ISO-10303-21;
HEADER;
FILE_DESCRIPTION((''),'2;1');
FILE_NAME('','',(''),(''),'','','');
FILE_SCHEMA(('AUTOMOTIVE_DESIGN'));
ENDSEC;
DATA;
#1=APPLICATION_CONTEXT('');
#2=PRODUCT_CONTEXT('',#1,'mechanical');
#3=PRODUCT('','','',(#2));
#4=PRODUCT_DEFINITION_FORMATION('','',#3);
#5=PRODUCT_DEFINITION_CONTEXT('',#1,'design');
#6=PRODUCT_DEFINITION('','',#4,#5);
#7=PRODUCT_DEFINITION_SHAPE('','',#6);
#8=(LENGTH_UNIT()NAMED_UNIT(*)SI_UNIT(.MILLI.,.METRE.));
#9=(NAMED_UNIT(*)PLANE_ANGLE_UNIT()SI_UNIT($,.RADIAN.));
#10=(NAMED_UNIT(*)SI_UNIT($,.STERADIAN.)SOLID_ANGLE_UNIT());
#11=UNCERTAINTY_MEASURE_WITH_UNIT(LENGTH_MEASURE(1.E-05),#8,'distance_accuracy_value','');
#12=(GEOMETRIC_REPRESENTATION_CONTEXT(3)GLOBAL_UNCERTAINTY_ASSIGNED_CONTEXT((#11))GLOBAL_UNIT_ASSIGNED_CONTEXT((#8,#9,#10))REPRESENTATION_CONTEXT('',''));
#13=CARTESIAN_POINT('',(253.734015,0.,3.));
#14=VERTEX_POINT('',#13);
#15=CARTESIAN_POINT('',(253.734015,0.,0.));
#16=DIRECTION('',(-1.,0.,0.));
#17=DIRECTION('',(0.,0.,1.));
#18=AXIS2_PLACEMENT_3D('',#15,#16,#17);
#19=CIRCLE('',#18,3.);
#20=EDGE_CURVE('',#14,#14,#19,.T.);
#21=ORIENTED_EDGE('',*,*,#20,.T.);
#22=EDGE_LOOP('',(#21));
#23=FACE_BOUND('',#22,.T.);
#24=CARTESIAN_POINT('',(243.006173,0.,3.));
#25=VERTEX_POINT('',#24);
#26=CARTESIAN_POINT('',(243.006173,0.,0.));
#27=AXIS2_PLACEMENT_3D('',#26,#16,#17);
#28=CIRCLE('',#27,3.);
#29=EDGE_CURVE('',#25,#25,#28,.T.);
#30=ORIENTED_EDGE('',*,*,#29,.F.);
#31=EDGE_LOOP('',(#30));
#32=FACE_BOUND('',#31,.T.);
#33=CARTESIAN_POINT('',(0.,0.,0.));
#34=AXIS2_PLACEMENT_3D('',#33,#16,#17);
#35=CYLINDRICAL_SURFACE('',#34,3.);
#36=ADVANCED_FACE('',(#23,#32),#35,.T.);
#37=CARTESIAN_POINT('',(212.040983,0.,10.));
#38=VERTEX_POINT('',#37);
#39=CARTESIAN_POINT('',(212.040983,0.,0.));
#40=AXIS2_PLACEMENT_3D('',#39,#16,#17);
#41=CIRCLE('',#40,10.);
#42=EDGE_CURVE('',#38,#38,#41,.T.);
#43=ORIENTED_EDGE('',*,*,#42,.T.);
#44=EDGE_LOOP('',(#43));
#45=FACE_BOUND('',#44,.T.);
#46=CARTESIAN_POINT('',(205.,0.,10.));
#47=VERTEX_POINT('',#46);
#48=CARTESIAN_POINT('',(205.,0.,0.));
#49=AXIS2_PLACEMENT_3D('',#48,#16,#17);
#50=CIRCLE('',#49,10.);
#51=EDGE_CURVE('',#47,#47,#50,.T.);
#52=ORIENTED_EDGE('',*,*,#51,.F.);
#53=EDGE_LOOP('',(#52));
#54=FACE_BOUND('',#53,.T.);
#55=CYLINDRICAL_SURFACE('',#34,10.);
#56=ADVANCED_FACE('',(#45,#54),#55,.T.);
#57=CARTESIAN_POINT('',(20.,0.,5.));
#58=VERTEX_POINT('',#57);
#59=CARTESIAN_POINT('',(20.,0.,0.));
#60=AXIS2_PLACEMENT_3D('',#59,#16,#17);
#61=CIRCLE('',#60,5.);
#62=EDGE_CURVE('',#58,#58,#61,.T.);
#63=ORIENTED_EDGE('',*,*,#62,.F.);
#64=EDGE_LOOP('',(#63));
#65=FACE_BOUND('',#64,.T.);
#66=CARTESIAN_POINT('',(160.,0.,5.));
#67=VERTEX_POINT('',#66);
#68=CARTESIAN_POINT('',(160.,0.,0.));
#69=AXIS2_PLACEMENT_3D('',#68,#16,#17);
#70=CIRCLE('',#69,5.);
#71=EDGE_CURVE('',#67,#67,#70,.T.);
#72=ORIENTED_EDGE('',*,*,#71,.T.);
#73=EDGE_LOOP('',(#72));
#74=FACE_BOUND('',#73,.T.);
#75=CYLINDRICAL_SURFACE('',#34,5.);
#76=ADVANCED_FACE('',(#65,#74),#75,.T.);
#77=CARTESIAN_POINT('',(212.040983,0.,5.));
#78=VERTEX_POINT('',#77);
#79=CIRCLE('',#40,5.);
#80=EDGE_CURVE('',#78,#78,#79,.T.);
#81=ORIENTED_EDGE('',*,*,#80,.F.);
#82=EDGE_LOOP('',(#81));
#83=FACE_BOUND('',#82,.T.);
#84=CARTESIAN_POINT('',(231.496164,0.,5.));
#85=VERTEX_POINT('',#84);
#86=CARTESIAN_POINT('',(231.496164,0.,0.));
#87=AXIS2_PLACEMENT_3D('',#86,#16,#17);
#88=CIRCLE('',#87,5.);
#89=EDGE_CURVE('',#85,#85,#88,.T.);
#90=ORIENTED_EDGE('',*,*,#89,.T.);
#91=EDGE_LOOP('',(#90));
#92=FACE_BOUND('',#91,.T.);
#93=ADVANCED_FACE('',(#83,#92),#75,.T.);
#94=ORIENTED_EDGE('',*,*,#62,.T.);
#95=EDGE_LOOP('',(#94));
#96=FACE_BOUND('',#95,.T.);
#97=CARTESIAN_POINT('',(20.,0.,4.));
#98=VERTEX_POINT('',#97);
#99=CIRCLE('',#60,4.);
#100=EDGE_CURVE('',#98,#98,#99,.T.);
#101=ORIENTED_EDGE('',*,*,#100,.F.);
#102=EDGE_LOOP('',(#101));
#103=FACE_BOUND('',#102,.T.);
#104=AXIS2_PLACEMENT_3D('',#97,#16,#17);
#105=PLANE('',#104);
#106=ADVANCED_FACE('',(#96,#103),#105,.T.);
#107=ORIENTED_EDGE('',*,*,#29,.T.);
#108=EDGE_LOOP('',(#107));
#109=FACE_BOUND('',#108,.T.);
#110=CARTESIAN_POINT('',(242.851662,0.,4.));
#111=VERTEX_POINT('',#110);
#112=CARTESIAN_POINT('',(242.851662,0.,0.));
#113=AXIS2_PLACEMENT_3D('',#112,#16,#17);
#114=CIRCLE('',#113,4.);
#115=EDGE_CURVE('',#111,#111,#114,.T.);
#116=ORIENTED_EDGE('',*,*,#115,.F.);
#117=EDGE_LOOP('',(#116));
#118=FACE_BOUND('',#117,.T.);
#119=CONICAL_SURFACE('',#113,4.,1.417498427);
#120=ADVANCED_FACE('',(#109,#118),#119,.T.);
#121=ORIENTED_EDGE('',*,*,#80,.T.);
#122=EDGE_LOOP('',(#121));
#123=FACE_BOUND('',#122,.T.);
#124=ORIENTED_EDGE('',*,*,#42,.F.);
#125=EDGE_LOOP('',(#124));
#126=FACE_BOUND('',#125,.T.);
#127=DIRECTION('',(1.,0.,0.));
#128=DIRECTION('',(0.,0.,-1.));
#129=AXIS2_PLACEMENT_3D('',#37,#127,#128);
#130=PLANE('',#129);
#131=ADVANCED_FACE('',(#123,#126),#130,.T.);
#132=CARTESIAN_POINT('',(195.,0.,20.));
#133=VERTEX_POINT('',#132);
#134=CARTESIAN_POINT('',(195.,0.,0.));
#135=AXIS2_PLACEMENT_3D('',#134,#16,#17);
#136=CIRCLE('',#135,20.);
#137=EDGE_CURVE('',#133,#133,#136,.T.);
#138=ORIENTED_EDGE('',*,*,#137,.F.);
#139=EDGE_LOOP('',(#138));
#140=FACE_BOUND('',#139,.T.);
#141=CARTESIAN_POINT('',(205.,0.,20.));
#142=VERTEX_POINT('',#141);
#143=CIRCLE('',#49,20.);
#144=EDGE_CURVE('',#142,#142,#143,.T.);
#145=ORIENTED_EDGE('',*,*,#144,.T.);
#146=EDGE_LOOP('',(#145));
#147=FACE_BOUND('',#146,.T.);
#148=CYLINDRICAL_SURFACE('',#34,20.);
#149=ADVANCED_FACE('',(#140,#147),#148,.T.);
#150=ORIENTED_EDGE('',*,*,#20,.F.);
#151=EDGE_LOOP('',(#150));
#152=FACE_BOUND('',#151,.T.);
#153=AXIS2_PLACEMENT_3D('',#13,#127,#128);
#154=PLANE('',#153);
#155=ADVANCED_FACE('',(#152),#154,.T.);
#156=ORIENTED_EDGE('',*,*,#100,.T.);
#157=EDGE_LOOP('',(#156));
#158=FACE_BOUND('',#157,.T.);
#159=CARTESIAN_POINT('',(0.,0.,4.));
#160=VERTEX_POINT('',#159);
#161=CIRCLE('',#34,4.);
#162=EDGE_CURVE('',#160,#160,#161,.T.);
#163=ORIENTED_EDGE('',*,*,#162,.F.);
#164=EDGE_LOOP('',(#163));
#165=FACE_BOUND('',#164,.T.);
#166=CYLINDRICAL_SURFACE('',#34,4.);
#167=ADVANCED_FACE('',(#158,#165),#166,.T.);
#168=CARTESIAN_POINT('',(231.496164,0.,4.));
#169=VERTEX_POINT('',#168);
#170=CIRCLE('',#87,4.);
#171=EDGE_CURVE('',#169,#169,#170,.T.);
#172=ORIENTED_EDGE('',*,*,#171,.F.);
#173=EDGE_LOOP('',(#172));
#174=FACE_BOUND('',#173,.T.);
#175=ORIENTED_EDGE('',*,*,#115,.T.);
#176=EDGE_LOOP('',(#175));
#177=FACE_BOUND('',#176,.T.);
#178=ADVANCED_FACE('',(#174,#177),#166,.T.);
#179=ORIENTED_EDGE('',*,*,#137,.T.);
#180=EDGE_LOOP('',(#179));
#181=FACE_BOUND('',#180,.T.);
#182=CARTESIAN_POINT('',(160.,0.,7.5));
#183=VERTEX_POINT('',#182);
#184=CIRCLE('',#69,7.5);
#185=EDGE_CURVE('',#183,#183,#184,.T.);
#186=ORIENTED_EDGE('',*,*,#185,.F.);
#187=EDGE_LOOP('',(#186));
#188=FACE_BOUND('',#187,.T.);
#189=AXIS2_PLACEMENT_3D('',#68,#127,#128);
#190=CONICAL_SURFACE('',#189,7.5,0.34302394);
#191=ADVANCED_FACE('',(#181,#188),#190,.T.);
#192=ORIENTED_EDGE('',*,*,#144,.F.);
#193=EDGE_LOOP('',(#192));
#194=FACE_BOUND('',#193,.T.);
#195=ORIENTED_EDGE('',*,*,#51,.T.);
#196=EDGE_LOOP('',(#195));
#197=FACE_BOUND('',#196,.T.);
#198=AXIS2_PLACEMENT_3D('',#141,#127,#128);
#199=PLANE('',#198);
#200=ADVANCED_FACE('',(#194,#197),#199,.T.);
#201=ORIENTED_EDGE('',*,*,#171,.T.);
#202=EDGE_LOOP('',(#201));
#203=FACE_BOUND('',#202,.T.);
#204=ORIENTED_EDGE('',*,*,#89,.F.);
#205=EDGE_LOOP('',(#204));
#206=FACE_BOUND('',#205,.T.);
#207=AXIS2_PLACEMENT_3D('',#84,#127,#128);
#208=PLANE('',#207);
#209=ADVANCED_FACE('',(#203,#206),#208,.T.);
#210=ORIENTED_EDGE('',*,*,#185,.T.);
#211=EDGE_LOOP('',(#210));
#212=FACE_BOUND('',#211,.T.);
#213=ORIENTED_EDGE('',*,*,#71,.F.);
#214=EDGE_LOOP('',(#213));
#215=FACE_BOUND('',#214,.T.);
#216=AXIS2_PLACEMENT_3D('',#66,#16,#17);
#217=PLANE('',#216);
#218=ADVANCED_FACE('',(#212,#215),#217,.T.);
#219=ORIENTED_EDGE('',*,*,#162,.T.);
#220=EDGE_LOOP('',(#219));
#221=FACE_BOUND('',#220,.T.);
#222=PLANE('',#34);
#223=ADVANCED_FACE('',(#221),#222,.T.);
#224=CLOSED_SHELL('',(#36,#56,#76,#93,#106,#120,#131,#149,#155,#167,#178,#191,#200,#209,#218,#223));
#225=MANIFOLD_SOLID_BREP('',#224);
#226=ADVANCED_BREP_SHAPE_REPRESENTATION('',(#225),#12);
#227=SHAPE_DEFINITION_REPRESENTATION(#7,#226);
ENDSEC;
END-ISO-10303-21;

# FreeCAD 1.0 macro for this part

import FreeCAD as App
import Part
import Sketcher
from FreeCAD import Vector
Q = App.Units.Quantity

doc = App.newDocument("Part")
body = doc.addObject("PartDesign::Body", "Body")

# Sketch on XZ plane
sketch1 = body.newObject("Sketcher::SketchObject", "Sketch")
sketch1.AttachmentSupport = (doc.getObject("XZ_Plane"), [""])
sketch1.MapMode = "FlatFace"
sketch1.addGeometry([
    Part.LineSegment(Vector(0, 0, 0), Vector(0, 4, 0)),  # 0
    Part.LineSegment(Vector(0, 4, 0), Vector(20, 4, 0)),  # 1
    Part.LineSegment(Vector(20, 4, 0), Vector(20, 5, 0)),  # 2
    Part.LineSegment(Vector(20, 5, 0), Vector(160, 5, 0)),  # 3
    Part.LineSegment(Vector(160, 5, 0), Vector(160, 7.5, 0)),  # 4
    Part.LineSegment(Vector(160, 7.5, 0), Vector(195, 20, 0)),  # 5
    Part.LineSegment(Vector(195, 20, 0), Vector(205, 20, 0)),  # 6
    Part.LineSegment(Vector(205, 20, 0), Vector(205, 10, 0)),  # 7
    Part.LineSegment(Vector(205, 10, 0), Vector(212, 10, 0)),  # 8
    Part.LineSegment(Vector(212, 10, 0), Vector(212, 5, 0)),  # 9
    Part.LineSegment(Vector(212, 5, 0), Vector(231.5, 5, 0)),  # 10
    Part.LineSegment(Vector(231.5, 5, 0), Vector(231.5, 4, 0)),  # 11
    Part.LineSegment(Vector(231.5, 4, 0), Vector(242.9, 4, 0)),  # 12
    Part.LineSegment(Vector(242.9, 4, 0), Vector(243, 3, 0)),  # 13
    Part.LineSegment(Vector(243, 3, 0), Vector(253.7, 3, 0)),  # 14
    Part.LineSegment(Vector(253.7, 3, 0), Vector(253.7, 0, 0)),  # 15
    Part.LineSegment(Vector(253.7, 0, 0), Vector(0, 0, 0)),  # 16
], False)
sketch1.addConstraint([
    Sketcher.Constraint("Coincident", 0, 2, 1, 1),
    Sketcher.Constraint("Coincident", 1, 2, 2, 1),
    Sketcher.Constraint("Coincident", 2, 2, 3, 1),
    Sketcher.Constraint("Coincident", 3, 2, 4, 1),
    Sketcher.Constraint("Coincident", 4, 2, 5, 1),
    Sketcher.Constraint("Coincident", 5, 2, 6, 1),
    Sketcher.Constraint("Coincident", 6, 2, 7, 1),
    Sketcher.Constraint("Coincident", 7, 2, 8, 1),
    Sketcher.Constraint("Coincident", 8, 2, 9, 1),
    Sketcher.Constraint("Coincident", 9, 2, 10, 1),
    Sketcher.Constraint("Coincident", 10, 2, 11, 1),
    Sketcher.Constraint("Coincident", 11, 2, 12, 1),
    Sketcher.Constraint("Coincident", 12, 2, 13, 1),
    Sketcher.Constraint("Coincident", 13, 2, 14, 1),
    Sketcher.Constraint("Coincident", 14, 2, 15, 1),
    Sketcher.Constraint("Coincident", 15, 2, 16, 1),
    Sketcher.Constraint("Coincident", 16, 2, 0, 1),
    Sketcher.Constraint("Vertical", 0),
    Sketcher.Constraint("Horizontal", 1),
    Sketcher.Constraint("Vertical", 2),
    Sketcher.Constraint("Horizontal", 3),
    Sketcher.Constraint("Vertical", 4),
    Sketcher.Constraint("Horizontal", 6),
    Sketcher.Constraint("Vertical", 7),
    Sketcher.Constraint("Horizontal", 8),
    Sketcher.Constraint("Vertical", 9),
    Sketcher.Constraint("Horizontal", 10),
    Sketcher.Constraint("Vertical", 11),
    Sketcher.Constraint("Horizontal", 12),
    Sketcher.Constraint("Horizontal", 14),
    Sketcher.Constraint("Vertical", 15),
    Sketcher.Constraint("Horizontal", 16),
    Sketcher.Constraint("Coincident", 16, 2, -1, 1),
    Sketcher.Constraint("Horizontal", 3, 2, 9, 2),
    Sketcher.Constraint("Horizontal", 1, 2, 11, 2),
    Sketcher.Constraint("Equal", 6, 7),
    Sketcher.Constraint("DistanceX", 1, 1, 1, 2, Q("20 mm")),
    Sketcher.Constraint("DistanceX", 3, 1, 3, 2, Q("140 mm")),
    Sketcher.Constraint("DistanceX", 6, 1, 6, 2, Q("10 mm")),
    Sketcher.Constraint("DistanceY", 0, 1, 0, 2, Q("4 mm")),
    Sketcher.Constraint("DistanceY", 2, 1, 2, 2, Q("1 mm")),
    Sketcher.Constraint("DistanceY", 9, 2, 9, 1, Q("5 mm")),
    Sketcher.Constraint("DistanceY", 15, 2, 15, 1, Q("3 mm")),
    Sketcher.Constraint("DistanceY", 4, 1, 4, 2, Q("2.5 mm")),
    Sketcher.Constraint("DistanceX", -1, 1, 5, 2, Q("195 mm")),
    Sketcher.Constraint("DistanceX", 12, 1, 12, 2, Q("11.355499 mm")),
    Sketcher.Constraint("DistanceX", 10, 1, 10, 2, Q("19.455181 mm")),
    Sketcher.Constraint("DistanceX", 8, 1, 8, 2, Q("7.040983 mm")),
    Sketcher.Constraint("DistanceX", 14, 1, 14, 2, Q("10.727843 mm")),
    Sketcher.Constraint("DistanceX", 16, 2, 16, 1, Q("253.734015 mm")),
])
revolution = body.newObject("PartDesign::Revolution", "Revolution")
revolution.Profile = sketch1
revolution.ReferenceAxis = (sketch1, ["H_Axis"])
revolution.Angle = 360

doc.recompute()
